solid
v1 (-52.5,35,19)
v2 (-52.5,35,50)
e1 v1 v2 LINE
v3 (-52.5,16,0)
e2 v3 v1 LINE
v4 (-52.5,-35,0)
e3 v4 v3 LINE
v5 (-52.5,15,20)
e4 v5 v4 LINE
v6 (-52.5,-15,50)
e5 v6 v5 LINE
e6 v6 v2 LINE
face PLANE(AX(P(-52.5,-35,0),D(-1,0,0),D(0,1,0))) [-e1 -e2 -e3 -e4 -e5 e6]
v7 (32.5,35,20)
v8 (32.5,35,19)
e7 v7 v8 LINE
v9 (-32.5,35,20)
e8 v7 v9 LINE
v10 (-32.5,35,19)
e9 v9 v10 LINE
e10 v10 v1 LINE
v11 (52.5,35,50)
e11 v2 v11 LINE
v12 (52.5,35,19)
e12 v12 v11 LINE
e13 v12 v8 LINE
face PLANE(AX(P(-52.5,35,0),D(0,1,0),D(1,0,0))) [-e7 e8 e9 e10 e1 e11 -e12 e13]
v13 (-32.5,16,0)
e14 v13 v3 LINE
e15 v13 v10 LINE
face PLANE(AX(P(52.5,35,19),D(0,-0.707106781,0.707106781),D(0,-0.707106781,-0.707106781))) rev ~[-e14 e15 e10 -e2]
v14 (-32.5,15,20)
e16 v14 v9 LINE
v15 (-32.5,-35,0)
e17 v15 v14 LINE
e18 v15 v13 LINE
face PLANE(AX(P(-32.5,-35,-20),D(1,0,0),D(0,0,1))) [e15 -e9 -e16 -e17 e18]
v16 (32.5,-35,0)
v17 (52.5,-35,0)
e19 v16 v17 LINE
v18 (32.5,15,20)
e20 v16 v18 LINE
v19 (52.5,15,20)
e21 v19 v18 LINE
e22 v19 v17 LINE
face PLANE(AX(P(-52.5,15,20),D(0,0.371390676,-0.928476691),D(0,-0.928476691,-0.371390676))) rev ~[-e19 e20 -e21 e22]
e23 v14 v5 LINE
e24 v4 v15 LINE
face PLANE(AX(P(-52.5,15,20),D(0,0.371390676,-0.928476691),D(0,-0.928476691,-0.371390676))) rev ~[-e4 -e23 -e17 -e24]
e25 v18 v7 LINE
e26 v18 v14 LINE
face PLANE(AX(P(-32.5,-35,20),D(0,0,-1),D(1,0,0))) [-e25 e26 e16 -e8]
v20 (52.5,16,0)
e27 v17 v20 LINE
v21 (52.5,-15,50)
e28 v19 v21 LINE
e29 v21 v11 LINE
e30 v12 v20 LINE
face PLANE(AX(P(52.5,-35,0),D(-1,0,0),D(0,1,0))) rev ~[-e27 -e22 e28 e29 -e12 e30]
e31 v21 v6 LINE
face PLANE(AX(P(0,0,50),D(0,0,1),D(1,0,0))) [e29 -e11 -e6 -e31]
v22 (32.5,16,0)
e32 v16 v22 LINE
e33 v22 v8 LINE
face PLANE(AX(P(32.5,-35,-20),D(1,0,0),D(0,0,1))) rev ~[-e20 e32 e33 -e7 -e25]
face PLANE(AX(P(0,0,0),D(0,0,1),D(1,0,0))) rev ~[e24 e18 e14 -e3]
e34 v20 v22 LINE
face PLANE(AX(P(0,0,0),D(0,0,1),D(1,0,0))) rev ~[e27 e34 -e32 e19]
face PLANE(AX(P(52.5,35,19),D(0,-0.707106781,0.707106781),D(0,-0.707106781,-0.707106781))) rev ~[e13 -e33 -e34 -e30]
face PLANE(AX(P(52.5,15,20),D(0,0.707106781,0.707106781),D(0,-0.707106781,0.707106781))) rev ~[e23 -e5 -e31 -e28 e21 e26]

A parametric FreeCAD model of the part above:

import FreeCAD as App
import Part
import Sketcher
from FreeCAD import Vector
Q = App.Units.Quantity

doc = App.newDocument("Part")
body = doc.addObject("PartDesign::Body", "Body")

sketch1 = body.newObject("Sketcher::SketchObject", "Sketch")
sketch1.AttachmentSupport = (doc.getObject("XY_Plane"), [""])
sketch1.MapMode = "FlatFace"
sketch1.addGeometry([
    Part.LineSegment(Vector(-52, 35, 0), Vector(-52, -35, 0)),
    Part.LineSegment(Vector(-52, -35, 0), Vector(52, -35, 0)),
    Part.LineSegment(Vector(52, -35, 0), Vector(52, 35, 0)),
    Part.LineSegment(Vector(52, 35, 0), Vector(-52, 35, 0)),
], False)
sketch1.addConstraint([
    Sketcher.Constraint("Coincident", 0, 2, 1, 1),
    Sketcher.Constraint("Coincident", 1, 2, 2, 1),
    Sketcher.Constraint("Coincident", 2, 2, 3, 1),
    Sketcher.Constraint("Coincident", 3, 2, 0, 1),
    Sketcher.Constraint("Vertical", 0),
    Sketcher.Constraint("Horizontal", 1),
    Sketcher.Constraint("Vertical", 2),
    Sketcher.Constraint("Horizontal", 3),
    Sketcher.Constraint("Symmetric", 0, 2, 2, 2, -1, 1),
    Sketcher.Constraint("DistanceX", 1, 1, 1, 2, 105.0),
    Sketcher.Constraint("DistanceY", 0, 2, 0, 1, 70.0),
])
pad1 = body.newObject("PartDesign::Pad", "Pad")
pad1.Profile = sketch1
pad1.Length = 50

sketch2 = body.newObject("Sketcher::SketchObject", "Sketch001")
sketch2.AttachmentSupport = (doc.getObject("YZ_Plane"), [""])
sketch2.MapMode = "FlatFace"
sketch2.AttachmentOffset = App.Placement(Vector(0, 0, 52.5), App.Rotation())
sketch2.addGeometry([
    Part.LineSegment(Vector(16, 0, 0), Vector(35, 0, 0)),
    Part.LineSegment(Vector(35, 0, 0), Vector(35, 19, 0)),
    Part.LineSegment(Vector(35, 19, 0), Vector(16, 0, 0)),
], False)
sketch2.addConstraint([
    Sketcher.Constraint("Coincident", 0, 2, 1, 1),
    Sketcher.Constraint("Coincident", 1, 2, 2, 1),
    Sketcher.Constraint("Coincident", 2, 2, 0, 1),
    Sketcher.Constraint("Horizontal", 0),
    Sketcher.Constraint("Vertical", 1),
    Sketcher.Constraint("PointOnObject", 0, 2, -1),
    Sketcher.Constraint("Equal", 0, 1),
    Sketcher.Constraint("DistanceX", 0, 1, 0, 2, 19.0),
    Sketcher.Constraint("DistanceX", -1, 1, 0, 2, 35.0),
])
pocket1 = body.newObject("PartDesign::Pocket", "Pocket")
pocket1.Profile = sketch2
pocket1.Type = "ThroughAll"

sketch3 = body.newObject("Sketcher::SketchObject", "Sketch002")
sketch3.AttachmentSupport = (doc.getObject("YZ_Plane"), [""])
sketch3.MapMode = "FlatFace"
sketch3.AttachmentOffset = App.Placement(Vector(0, 0, 52.5), App.Rotation())
sketch3.addGeometry([
    Part.LineSegment(Vector(-45, 80, 0), Vector(-35, 20, 0)),
    Part.LineSegment(Vector(-35, 20, 0), Vector(15, 20, 0)),
    Part.LineSegment(Vector(15, 20, 0), Vector(-45, 80, 0)),
], False)
sketch3.addConstraint([
    Sketcher.Constraint("Coincident", 0, 2, 1, 1),
    Sketcher.Constraint("Coincident", 1, 2, 2, 1),
    Sketcher.Constraint("Coincident", 2, 2, 0, 1),
    Sketcher.Constraint("Horizontal", 1),
    Sketcher.Constraint("DistanceX", 1, 1, 1, 2, 50.0),
    Sketcher.Constraint("Angle", 2, Q("135 deg")),
    Sketcher.Constraint("DistanceX", 0, 2, -1, 1, 35.0),
    Sketcher.Constraint("DistanceY", -1, 1, 0, 2, 20.0),
    Sketcher.Constraint("Distance", 0, 60.751093),
])
pocket2 = body.newObject("PartDesign::Pocket", "Pocket001")
pocket2.Profile = sketch3
pocket2.Type = "ThroughAll"

sketch4 = body.newObject("Sketcher::SketchObject", "Sketch003")
sketch4.AttachmentSupport = (doc.getObject("XZ_Plane"), [""])
sketch4.MapMode = "FlatFace"
sketch4.AttachmentOffset = App.Placement(Vector(0, 0, 35), App.Rotation())
sketch4.addGeometry([
    Part.LineSegment(Vector(-32, 20, 0), Vector(-32, -20, 0)),
    Part.LineSegment(Vector(-32, -20, 0), Vector(32, -20, 0)),
    Part.LineSegment(Vector(32, -20, 0), Vector(32, 20, 0)),
    Part.LineSegment(Vector(32, 20, 0), Vector(-32, 20, 0)),
], False)
sketch4.addConstraint([
    Sketcher.Constraint("Coincident", 0, 2, 1, 1),
    Sketcher.Constraint("Coincident", 1, 2, 2, 1),
    Sketcher.Constraint("Coincident", 2, 2, 3, 1),
    Sketcher.Constraint("Coincident", 3, 2, 0, 1),
    Sketcher.Constraint("Vertical", 0),
    Sketcher.Constraint("Horizontal", 1),
    Sketcher.Constraint("Vertical", 2),
    Sketcher.Constraint("Horizontal", 3),
    Sketcher.Constraint("Symmetric", 0, 2, 2, 2, -1, 1),
    Sketcher.Constraint("DistanceX", 1, 1, 1, 2, 65.0),
    Sketcher.Constraint("DistanceY", 0, 2, 0, 1, 40.0),
])
pocket3 = body.newObject("PartDesign::Pocket", "Pocket002")
pocket3.Profile = sketch4
pocket3.Type = "ThroughAll"

sketch5 = body.newObject("Sketcher::SketchObject", "Sketch004")
sketch5.AttachmentSupport = (doc.getObject("YZ_Plane"), [""])
sketch5.MapMode = "FlatFace"
sketch5.AttachmentOffset = App.Placement(Vector(0, 0, -52.5), App.Rotation())
sketch5.addGeometry([
    Part.LineSegment(Vector(-35, 0, 0), Vector(-35, 20, 0)),
    Part.LineSegment(Vector(-35, 20, 0), Vector(15, 20, 0)),
    Part.LineSegment(Vector(15, 20, 0), Vector(-35, 0, 0)),
], False)
sketch5.addConstraint([
    Sketcher.Constraint("Coincident", 0, 2, 1, 1),
    Sketcher.Constraint("Coincident", 1, 2, 2, 1),
    Sketcher.Constraint("Coincident", 2, 2, 0, 1),
    Sketcher.Constraint("Vertical", 0),
    Sketcher.Constraint("Horizontal", 1),
    Sketcher.Constraint("PointOnObject", 2, 2, -1),
    Sketcher.Constraint("DistanceX", 1, 1, 1, 2, 50.0),
    Sketcher.Constraint("DistanceY", 0, 1, 0, 2, 20.0),
    Sketcher.Constraint("DistanceX", 0, 2, -1, 1, 35.0),
])
pocket4 = body.newObject("PartDesign::Pocket", "Pocket003")
pocket4.Profile = sketch5
pocket4.Type = "ThroughAll"
pocket4.Reversed = True

doc.recompute()
